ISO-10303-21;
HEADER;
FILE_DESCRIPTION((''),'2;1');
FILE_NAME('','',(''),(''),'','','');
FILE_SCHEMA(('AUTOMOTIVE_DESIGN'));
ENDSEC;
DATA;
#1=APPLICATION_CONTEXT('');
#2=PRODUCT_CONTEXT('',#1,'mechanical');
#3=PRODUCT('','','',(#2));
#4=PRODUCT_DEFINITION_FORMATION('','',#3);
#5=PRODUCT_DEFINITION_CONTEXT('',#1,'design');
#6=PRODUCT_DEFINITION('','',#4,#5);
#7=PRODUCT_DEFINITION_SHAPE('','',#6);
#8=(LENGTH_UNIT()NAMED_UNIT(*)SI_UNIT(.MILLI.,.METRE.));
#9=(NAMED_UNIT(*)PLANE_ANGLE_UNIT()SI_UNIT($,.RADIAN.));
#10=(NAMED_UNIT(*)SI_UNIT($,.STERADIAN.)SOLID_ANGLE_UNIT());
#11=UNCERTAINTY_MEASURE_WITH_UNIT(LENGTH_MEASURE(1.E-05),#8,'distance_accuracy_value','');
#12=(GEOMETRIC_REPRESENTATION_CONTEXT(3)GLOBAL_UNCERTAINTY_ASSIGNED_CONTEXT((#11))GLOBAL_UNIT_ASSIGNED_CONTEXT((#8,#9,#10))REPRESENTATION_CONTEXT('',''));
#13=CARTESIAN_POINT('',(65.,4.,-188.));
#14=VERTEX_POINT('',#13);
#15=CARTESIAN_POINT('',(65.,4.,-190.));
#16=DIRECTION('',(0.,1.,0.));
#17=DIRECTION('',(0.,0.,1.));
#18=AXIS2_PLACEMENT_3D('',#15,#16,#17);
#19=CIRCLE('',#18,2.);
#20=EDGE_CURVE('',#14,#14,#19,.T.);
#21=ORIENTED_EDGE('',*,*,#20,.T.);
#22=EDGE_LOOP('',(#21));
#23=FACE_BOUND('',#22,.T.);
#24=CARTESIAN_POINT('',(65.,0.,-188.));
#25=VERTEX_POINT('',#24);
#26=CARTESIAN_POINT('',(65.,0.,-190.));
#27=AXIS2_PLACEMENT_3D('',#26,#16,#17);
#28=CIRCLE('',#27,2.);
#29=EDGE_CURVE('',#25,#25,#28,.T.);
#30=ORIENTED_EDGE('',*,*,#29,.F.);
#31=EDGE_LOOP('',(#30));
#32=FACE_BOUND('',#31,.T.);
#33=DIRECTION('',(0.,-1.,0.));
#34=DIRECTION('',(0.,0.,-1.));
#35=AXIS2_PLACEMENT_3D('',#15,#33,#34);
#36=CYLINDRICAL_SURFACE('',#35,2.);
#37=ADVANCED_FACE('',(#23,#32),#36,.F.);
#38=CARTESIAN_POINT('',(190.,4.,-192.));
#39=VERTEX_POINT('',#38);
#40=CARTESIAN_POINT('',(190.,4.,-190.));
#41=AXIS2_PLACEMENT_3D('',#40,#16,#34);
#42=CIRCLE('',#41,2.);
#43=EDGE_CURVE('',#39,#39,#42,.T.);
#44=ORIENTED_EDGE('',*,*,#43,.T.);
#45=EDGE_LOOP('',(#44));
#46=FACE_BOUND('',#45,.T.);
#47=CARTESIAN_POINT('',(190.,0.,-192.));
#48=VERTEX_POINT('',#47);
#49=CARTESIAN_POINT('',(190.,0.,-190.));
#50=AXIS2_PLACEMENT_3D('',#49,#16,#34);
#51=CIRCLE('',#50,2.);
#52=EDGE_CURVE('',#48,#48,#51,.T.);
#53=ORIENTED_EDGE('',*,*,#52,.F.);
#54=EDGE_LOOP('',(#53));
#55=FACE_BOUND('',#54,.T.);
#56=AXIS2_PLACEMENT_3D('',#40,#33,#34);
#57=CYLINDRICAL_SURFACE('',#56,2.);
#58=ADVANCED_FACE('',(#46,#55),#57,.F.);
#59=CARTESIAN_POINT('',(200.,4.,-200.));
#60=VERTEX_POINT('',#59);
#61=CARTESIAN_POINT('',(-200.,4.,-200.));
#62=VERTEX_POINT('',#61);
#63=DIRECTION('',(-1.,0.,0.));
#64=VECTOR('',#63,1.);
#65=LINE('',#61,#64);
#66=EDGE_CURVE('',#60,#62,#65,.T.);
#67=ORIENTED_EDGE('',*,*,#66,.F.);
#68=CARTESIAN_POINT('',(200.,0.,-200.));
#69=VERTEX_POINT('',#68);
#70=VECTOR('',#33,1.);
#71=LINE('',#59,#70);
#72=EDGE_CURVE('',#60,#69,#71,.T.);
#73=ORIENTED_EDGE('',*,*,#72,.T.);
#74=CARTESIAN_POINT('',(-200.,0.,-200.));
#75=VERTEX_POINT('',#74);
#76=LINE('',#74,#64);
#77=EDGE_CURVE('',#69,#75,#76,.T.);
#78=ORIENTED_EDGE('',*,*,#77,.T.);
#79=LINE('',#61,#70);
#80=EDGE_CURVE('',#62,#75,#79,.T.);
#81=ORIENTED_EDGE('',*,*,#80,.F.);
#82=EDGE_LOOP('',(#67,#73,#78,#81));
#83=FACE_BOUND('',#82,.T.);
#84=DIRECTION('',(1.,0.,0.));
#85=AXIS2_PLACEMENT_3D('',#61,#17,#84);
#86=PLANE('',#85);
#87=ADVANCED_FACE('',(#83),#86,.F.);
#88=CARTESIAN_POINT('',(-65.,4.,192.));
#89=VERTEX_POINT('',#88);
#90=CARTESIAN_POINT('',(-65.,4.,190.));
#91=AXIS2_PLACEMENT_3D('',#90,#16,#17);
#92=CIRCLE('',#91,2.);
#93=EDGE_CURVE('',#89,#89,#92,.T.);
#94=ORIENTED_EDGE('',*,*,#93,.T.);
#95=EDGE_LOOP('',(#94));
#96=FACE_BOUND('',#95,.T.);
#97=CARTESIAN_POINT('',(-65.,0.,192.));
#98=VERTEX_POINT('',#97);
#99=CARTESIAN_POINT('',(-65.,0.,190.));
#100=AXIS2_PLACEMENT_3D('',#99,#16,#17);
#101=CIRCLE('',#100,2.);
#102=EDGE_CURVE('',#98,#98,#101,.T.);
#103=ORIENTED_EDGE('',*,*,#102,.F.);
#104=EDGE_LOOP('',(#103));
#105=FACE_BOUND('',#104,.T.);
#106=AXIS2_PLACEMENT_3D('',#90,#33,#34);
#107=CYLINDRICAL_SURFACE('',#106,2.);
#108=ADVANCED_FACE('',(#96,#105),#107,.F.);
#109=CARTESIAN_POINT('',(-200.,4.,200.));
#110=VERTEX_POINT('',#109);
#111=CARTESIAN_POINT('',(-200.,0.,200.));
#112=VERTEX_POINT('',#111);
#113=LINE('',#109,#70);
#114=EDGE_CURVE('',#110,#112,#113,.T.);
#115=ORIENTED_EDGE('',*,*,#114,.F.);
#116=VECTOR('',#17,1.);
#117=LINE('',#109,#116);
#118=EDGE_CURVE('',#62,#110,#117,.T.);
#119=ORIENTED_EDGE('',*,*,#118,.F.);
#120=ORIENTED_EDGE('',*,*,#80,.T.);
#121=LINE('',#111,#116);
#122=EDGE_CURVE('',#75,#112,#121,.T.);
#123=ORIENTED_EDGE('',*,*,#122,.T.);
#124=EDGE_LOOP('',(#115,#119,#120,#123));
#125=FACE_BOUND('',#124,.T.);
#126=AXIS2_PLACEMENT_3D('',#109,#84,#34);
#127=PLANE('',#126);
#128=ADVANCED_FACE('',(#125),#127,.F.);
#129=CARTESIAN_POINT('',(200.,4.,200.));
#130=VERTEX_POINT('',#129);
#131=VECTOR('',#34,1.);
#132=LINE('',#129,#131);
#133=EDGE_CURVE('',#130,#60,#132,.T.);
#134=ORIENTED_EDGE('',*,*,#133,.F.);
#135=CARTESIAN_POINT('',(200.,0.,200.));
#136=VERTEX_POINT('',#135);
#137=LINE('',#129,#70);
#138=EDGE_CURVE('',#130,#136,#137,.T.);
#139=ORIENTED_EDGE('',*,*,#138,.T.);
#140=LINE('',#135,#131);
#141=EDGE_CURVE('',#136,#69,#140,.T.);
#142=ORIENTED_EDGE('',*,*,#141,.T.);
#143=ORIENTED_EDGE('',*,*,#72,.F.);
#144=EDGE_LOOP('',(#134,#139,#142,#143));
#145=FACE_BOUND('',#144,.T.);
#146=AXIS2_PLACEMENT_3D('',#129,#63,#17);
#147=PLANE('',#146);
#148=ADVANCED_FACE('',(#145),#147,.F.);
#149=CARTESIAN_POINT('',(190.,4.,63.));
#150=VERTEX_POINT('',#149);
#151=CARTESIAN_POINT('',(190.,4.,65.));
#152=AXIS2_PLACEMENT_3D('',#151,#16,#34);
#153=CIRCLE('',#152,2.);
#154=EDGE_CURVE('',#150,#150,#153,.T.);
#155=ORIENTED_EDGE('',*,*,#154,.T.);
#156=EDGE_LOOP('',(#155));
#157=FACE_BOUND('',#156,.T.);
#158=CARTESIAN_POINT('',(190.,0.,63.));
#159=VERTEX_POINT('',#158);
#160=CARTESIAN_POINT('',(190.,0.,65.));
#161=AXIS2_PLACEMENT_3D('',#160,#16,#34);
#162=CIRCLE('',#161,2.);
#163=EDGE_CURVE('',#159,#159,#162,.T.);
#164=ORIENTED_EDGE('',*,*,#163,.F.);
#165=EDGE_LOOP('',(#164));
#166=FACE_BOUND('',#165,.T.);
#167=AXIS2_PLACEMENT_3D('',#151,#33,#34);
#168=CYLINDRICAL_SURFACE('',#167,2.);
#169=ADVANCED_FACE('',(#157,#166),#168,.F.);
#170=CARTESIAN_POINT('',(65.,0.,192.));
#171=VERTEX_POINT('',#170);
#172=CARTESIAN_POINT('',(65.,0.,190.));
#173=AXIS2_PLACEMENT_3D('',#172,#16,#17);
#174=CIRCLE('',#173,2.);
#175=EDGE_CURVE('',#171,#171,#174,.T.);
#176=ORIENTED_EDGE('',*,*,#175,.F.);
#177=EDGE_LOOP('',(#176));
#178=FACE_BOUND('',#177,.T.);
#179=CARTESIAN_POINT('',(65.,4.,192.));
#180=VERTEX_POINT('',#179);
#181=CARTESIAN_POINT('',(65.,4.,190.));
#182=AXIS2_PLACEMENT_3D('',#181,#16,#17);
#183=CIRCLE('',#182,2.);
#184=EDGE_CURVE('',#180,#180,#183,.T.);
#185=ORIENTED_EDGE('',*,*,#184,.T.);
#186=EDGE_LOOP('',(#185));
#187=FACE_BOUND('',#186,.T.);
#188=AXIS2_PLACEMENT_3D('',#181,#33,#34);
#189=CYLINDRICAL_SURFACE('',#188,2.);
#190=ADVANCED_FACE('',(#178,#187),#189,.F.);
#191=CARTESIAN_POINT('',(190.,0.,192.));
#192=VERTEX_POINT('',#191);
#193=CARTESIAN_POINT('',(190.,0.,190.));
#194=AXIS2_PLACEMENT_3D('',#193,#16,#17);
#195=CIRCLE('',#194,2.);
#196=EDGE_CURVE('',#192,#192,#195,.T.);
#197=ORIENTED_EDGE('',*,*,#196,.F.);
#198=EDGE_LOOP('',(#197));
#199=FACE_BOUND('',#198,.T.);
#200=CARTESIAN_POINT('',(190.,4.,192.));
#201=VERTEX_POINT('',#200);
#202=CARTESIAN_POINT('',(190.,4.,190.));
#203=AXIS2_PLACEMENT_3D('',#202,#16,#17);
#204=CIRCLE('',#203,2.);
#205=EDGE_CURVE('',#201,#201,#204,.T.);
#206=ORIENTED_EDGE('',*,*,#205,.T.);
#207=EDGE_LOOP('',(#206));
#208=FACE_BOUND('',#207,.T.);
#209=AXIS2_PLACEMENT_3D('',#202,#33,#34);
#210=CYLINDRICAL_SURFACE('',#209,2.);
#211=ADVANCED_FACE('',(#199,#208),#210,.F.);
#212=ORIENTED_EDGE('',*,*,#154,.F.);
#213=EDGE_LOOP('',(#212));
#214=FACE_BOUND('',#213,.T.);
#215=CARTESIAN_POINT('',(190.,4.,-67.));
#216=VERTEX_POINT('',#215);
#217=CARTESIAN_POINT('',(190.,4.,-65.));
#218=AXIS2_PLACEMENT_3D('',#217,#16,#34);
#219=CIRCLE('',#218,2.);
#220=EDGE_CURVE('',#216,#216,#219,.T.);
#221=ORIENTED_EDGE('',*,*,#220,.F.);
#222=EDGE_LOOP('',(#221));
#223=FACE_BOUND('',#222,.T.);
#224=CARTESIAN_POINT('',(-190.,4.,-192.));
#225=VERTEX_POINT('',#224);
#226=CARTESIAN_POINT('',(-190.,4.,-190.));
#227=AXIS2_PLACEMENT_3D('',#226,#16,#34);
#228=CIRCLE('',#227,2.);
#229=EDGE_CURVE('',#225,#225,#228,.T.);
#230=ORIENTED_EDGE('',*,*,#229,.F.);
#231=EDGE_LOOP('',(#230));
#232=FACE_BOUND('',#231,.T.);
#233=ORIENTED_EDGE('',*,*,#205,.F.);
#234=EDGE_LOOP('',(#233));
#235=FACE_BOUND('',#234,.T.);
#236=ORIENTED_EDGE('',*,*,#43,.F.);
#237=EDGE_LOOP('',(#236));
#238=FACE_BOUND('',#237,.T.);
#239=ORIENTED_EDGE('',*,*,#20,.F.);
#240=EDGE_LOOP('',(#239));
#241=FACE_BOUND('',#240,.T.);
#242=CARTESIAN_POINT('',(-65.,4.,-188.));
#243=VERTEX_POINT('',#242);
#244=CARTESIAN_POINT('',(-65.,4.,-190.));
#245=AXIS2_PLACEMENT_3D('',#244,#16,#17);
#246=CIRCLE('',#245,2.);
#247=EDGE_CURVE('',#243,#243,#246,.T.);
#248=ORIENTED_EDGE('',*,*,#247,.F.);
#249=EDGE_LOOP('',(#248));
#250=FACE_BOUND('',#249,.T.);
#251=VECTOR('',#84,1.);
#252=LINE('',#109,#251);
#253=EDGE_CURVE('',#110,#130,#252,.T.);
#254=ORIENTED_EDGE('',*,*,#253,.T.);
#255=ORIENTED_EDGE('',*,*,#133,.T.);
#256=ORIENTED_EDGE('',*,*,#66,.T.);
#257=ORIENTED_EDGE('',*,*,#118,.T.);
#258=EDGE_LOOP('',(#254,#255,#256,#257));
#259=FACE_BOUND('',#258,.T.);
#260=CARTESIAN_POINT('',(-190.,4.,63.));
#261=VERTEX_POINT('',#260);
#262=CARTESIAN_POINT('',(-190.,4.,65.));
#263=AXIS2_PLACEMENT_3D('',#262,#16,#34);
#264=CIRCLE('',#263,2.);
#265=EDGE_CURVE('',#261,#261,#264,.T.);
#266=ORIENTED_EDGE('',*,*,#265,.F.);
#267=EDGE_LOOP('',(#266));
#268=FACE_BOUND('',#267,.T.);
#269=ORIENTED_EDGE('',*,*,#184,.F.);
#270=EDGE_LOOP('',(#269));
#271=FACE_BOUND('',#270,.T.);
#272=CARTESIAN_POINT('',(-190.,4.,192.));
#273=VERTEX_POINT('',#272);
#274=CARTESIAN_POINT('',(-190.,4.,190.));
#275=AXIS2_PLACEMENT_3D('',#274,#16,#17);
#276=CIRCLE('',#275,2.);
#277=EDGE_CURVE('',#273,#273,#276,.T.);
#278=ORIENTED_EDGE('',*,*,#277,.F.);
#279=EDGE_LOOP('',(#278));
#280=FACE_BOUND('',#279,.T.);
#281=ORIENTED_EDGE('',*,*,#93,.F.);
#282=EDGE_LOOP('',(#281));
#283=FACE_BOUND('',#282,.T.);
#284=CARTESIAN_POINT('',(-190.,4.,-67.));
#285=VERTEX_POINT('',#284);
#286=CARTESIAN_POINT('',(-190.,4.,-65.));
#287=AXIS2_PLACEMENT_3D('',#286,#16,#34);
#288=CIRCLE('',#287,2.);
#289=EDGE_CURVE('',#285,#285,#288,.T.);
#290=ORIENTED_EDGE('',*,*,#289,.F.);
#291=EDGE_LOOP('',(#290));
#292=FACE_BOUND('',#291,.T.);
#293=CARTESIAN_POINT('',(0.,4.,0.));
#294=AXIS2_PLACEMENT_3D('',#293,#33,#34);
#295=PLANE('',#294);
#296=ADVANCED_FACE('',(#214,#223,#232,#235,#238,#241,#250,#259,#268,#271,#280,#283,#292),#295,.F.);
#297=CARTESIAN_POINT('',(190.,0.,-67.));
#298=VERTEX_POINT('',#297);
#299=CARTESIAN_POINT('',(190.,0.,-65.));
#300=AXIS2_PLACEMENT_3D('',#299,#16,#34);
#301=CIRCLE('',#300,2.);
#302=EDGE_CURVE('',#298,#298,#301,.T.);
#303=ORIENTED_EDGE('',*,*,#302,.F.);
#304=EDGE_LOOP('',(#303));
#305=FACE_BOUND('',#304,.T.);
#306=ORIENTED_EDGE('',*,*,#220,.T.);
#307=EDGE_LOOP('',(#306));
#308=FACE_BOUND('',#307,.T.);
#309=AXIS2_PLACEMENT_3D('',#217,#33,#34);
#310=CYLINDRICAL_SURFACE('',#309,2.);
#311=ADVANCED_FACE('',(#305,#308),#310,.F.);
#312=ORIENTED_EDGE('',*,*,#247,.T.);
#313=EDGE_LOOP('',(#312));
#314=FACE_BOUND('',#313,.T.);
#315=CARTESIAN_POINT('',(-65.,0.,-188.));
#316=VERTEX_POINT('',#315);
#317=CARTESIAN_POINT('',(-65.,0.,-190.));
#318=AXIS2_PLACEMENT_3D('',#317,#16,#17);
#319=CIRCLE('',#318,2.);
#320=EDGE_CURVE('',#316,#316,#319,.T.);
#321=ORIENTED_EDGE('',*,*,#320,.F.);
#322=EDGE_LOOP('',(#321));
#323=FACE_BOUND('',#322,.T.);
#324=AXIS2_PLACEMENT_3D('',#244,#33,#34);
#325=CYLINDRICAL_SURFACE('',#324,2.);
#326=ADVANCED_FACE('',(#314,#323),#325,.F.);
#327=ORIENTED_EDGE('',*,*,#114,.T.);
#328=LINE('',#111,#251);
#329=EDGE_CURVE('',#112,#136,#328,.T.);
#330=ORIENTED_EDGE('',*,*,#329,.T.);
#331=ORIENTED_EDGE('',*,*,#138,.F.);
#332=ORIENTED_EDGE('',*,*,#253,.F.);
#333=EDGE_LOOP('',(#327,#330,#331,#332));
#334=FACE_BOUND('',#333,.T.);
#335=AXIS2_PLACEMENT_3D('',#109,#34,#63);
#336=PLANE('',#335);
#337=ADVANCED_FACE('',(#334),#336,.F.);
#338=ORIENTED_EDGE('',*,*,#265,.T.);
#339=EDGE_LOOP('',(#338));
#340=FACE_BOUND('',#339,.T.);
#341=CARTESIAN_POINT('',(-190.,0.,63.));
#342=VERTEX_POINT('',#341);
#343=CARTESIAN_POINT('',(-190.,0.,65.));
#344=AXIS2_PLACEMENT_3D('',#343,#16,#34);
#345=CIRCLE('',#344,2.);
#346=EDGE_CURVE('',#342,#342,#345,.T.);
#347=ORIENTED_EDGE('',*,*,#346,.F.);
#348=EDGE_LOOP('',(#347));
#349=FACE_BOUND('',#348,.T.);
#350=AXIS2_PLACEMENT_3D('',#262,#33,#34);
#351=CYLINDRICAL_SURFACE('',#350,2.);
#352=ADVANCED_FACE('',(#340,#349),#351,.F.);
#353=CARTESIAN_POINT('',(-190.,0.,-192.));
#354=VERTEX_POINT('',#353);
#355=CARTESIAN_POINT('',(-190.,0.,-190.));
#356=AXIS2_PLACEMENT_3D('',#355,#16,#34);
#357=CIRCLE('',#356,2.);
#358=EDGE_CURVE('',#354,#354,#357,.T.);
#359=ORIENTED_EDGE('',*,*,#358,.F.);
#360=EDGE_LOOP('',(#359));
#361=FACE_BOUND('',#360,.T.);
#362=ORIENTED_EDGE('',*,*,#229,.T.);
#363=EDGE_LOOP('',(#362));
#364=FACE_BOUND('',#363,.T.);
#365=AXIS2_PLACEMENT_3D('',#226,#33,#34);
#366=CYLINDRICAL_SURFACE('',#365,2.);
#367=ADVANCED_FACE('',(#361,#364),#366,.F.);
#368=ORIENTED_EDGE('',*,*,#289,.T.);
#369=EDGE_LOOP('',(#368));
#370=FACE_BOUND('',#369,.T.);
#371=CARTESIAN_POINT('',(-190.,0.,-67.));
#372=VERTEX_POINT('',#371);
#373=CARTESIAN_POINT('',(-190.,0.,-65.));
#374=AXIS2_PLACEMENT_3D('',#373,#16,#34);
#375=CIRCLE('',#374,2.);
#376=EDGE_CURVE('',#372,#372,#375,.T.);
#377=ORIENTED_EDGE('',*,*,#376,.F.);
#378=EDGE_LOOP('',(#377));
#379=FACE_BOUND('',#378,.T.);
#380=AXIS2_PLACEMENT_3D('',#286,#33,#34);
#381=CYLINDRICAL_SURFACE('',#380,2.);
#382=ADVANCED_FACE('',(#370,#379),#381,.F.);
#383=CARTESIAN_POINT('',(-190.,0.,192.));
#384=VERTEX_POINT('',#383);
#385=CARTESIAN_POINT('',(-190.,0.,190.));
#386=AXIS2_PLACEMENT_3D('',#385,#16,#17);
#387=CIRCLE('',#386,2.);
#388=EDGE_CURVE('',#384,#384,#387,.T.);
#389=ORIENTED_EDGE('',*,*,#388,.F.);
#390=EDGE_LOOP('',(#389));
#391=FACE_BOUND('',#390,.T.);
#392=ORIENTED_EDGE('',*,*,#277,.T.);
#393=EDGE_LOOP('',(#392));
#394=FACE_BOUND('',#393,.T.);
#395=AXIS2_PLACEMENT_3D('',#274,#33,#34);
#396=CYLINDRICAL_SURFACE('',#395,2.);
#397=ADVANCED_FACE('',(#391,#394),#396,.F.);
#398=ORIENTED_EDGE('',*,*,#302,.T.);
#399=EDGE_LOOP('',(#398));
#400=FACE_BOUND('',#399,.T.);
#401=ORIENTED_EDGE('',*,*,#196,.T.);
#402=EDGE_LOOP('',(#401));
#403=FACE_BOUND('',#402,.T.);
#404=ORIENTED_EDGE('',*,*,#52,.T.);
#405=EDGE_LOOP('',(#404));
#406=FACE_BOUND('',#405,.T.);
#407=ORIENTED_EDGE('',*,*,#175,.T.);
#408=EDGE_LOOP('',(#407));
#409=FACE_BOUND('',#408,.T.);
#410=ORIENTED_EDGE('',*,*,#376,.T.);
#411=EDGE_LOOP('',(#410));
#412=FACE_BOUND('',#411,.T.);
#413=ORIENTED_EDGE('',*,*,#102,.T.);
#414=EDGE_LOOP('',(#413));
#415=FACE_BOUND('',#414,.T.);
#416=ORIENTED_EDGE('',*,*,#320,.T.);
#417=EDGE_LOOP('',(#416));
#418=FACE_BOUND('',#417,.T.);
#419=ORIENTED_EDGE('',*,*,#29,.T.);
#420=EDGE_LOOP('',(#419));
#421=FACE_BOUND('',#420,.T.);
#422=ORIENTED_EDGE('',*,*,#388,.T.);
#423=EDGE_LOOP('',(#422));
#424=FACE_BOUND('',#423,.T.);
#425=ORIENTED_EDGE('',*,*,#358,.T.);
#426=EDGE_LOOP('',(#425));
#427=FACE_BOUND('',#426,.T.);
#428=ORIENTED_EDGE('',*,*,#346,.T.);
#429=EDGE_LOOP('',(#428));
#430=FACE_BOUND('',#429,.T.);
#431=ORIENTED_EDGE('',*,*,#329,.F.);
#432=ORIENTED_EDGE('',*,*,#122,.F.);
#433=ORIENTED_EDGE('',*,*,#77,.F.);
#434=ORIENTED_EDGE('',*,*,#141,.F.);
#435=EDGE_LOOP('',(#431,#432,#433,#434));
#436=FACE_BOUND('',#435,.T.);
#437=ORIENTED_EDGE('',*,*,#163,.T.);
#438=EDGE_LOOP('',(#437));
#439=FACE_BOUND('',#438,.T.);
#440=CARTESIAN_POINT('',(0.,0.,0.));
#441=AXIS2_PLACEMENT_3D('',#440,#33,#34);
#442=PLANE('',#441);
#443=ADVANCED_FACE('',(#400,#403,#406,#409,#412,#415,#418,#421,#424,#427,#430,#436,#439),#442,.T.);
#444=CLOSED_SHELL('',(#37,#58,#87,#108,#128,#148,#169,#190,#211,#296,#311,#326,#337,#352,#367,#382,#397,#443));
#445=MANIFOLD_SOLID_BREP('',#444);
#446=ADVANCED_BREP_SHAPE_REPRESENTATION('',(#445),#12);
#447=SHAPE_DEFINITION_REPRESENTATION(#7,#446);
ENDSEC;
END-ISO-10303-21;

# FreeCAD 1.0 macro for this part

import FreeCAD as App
import Part
import Sketcher

V = App.Vector


def add_polygon(sketch, points):
    """Adds a closed chain of lines whose ends are joined by coincident constraints."""
    first, n = sketch.GeometryCount, len(points)
    for a, b in zip(points, points[1:] + points[:1]):
        sketch.addGeometry(Part.LineSegment(App.Vector(*a, 0), App.Vector(*b, 0)), False)
    for i in range(n):
        sketch.addConstraint(Sketcher.Constraint("Coincident", first + i, 2, first + (i + 1) % n, 1))

doc = App.newDocument("Part")
params = doc.addObject("Spreadsheet::Sheet", "Params")
for row, (alias, value) in enumerate([
    ("sketch1_diameter", "4 mm"),
    ("sketch1_width", "400 mm"),
    ("pad1_length", "4 mm"),
], start=1):
    params.set(f"A{row}", alias)
    params.set(f"B{row}", "=" + value)
    params.setAlias(f"B{row}", alias)

body = doc.addObject("PartDesign::Body", "Body")

sketch1 = doc.addObject("Sketcher::SketchObject", "Sketch")
body.addObject(sketch1)
sketch1.AttachmentSupport = (doc.XZ_Plane, [""])
sketch1.MapMode = "FlatFace"
add_polygon(sketch1, [(-200, -200), (-200, 200), (200, 200), (200, -200)])
sketch1.addGeometry(Part.Circle(V(-190, 190, 0), V(0, 0, 1), 2), False)
sketch1.addGeometry(Part.Circle(V(-65, 190, 0), V(0, 0, 1), 2), False)
sketch1.addGeometry(Part.Circle(V(-190, 65, 0), V(0, 0, 1), 2), False)
sketch1.addGeometry(Part.Circle(V(65, 190, 0), V(0, 0, 1), 2), False)
sketch1.addGeometry(Part.Circle(V(190, 190, 0), V(0, 0, 1), 2), False)
sketch1.addGeometry(Part.Circle(V(190, 65, 0), V(0, 0, 1), 2), False)
sketch1.addGeometry(Part.Circle(V(-190, -65, 0), V(0, 0, 1), 2), False)
sketch1.addGeometry(Part.Circle(V(-190, -190, 0), V(0, 0, 1), 2), False)
sketch1.addGeometry(Part.Circle(V(-65, -190, 0), V(0, 0, 1), 2), False)
sketch1.addGeometry(Part.Circle(V(190, -65, 0), V(0, 0, 1), 2), False)
sketch1.addGeometry(Part.Circle(V(65, -190, 0), V(0, 0, 1), 2), False)
sketch1.addGeometry(Part.Circle(V(190, -190, 0), V(0, 0, 1), 2), False)
sketch1.addConstraint([
    Sketcher.Constraint("Vertical", 0),
    Sketcher.Constraint("Horizontal", 1),
    Sketcher.Constraint("Vertical", 2),
    Sketcher.Constraint("Horizontal", 3),
    Sketcher.Constraint("Equal", 4, 5),
    Sketcher.Constraint("Equal", 5, 6),
    Sketcher.Constraint("Equal", 6, 7),
    Sketcher.Constraint("Equal", 7, 8),
    Sketcher.Constraint("Equal", 8, 9),
    Sketcher.Constraint("Equal", 9, 10),
    Sketcher.Constraint("Equal", 10, 11),
    Sketcher.Constraint("Equal", 11, 12),
    Sketcher.Constraint("Equal", 12, 13),
    Sketcher.Constraint("Equal", 13, 14),
    Sketcher.Constraint("Equal", 14, 15),
    Sketcher.Constraint("Symmetric", 9, 3, 10, 3, -1, 1),
    Sketcher.Constraint("Symmetric", 8, 3, 11, 3, -1, 1),
    Sketcher.Constraint("Symmetric", 7, 3, 12, 3, -1, 1),
    Sketcher.Constraint("Symmetric", 6, 3, 13, 3, -1, 1),
    Sketcher.Constraint("Symmetric", 5, 3, 14, 3, -1, 1),
    Sketcher.Constraint("Symmetric", 4, 3, 15, 3, -1, 1),
    Sketcher.Constraint("Symmetric", 0, 2, 2, 2, -1, 1),
    Sketcher.Constraint("Symmetric", 5, 3, 7, 3, -2),
    Sketcher.Constraint("Symmetric", 4, 3, 8, 3, -2),
    Sketcher.Constraint("Symmetric", 6, 3, 9, 3, -2),
    Sketcher.Constraint("Horizontal", 4, 3, 5, 3),
    Sketcher.Constraint("Vertical", 4, 3, 6, 3),
    Sketcher.Constraint("Equal", 3, 0),
    Sketcher.Constraint("Diameter", 4, 4.0),
    Sketcher.Constraint("DistanceX", 1, 1, 1, 2, 400.0),
    Sketcher.Constraint("DistanceX", 4, 3, -1, 1, 190.0),
    Sketcher.Constraint("DistanceY", -1, 1, 4, 3, 190.0),
    Sketcher.Constraint("DistanceX", 5, 3, -1, 1, 65.0),
    Sketcher.Constraint("DistanceY", -1, 1, 6, 3, 65.0),
])
sketch1.setExpression("Constraints[32]", "Params.sketch1_diameter")
sketch1.setExpression("Constraints[33]", "Params.sketch1_width")
pad1 = doc.addObject("PartDesign::Pad", "Pad")
body.addObject(pad1)
pad1.Profile = sketch1
pad1.setExpression("Length", "Params.pad1_length")
pad1.Reversed = True

doc.recompute()
